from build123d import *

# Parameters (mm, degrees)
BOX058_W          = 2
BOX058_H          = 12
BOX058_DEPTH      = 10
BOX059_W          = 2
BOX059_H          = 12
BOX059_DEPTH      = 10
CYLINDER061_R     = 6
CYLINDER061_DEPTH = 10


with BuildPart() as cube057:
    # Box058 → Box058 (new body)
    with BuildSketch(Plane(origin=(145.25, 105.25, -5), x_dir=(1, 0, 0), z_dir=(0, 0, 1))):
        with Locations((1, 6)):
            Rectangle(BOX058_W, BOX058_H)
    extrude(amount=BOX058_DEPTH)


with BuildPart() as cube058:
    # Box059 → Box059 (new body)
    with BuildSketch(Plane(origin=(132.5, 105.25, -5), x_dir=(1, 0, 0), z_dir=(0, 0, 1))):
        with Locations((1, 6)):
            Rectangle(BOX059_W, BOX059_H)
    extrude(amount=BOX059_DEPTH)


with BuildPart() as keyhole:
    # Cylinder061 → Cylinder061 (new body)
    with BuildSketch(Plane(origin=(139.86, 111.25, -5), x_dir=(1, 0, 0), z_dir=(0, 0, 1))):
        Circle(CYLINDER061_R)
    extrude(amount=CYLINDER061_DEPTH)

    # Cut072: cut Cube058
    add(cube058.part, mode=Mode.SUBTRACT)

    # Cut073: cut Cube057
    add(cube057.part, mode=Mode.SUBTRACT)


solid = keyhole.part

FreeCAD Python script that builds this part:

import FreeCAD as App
import Part
import Sketcher


def add_polygon(sketch, points):
    """Adds a closed chain of lines whose ends are joined by coincident constraints."""
    first, n = sketch.GeometryCount, len(points)
    for a, b in zip(points, points[1:] + points[:1]):
        sketch.addGeometry(Part.LineSegment(App.Vector(*a, 0), App.Vector(*b, 0)), False)
    for i in range(n):
        sketch.addConstraint(Sketcher.Constraint("Coincident", first + i, 2, first + (i + 1) % n, 1))

doc = App.newDocument("Part")
params = doc.addObject("Spreadsheet::Sheet", "Params")
for row, (alias, value) in enumerate([
    ("sketch1_width", "2 mm"),
    ("sketch1_height", "12 mm"),
    ("pad1_length", "10 mm"),
    ("sketch2_width", "2 mm"),
    ("sketch2_height", "12 mm"),
    ("pad2_length", "10 mm"),
    ("sketch3_diameter", "12 mm"),
    ("pad3_length", "10 mm"),
], start=1):
    params.set(f"A{row}", alias)
    params.set(f"B{row}", "=" + value)
    params.setAlias(f"B{row}", alias)

body = doc.addObject("PartDesign::Body", "Body")

# Sketch on XY plane
sketch1 = doc.addObject("Sketcher::SketchObject", "Sketch")
body.addObject(sketch1)
sketch1.AttachmentSupport = (doc.XY_Plane, [""])
sketch1.MapMode = "FlatFace"
sketch1.AttachmentOffset = App.Placement(App.Vector(0, 0, -5), App.Rotation())
add_polygon(sketch1, [(145.2, 117.2), (145.2, 105.2), (147.2, 105.2), (147.2, 117.2)])  # lines 0-3
sketch1.addConstraint([
    Sketcher.Constraint("Vertical", 0),
    Sketcher.Constraint("Horizontal", 1),
    Sketcher.Constraint("Vertical", 2),
    Sketcher.Constraint("Horizontal", 3),
    Sketcher.Constraint("DistanceX", 1, 1, 1, 2, 2.0),
    Sketcher.Constraint("DistanceY", 0, 2, 0, 1, 12.0),
    Sketcher.Constraint("DistanceX", -1, 1, 0, 2, 145.25),
    Sketcher.Constraint("DistanceY", -1, 1, 0, 2, 105.25),
])
sketch1.setExpression("Constraints[8]", "Params.sketch1_width")
sketch1.setExpression("Constraints[9]", "Params.sketch1_height")
pad1 = doc.addObject("PartDesign::Pad", "Pad")
body.addObject(pad1)
pad1.Profile = sketch1
pad1.setExpression("Length", "Params.pad1_length")
body2 = doc.addObject("PartDesign::Body", "Body001")

# Sketch on XY plane
sketch2 = doc.addObject("Sketcher::SketchObject", "Sketch001")
body2.addObject(sketch2)
sketch2.AttachmentSupport = (doc.getObject("XY_Plane001"), [""])
sketch2.MapMode = "FlatFace"
sketch2.AttachmentOffset = App.Placement(App.Vector(0, 0, -5), App.Rotation())
add_polygon(sketch2, [(132.5, 117.2), (132.5, 105.2), (134.5, 105.2), (134.5, 117.2)])  # lines 0-3
sketch2.addConstraint([
    Sketcher.Constraint("Vertical", 0),
    Sketcher.Constraint("Horizontal", 1),
    Sketcher.Constraint("Vertical", 2),
    Sketcher.Constraint("Horizontal", 3),
    Sketcher.Constraint("DistanceX", 1, 1, 1, 2, 2.0),
    Sketcher.Constraint("DistanceY", 0, 2, 0, 1, 12.0),
    Sketcher.Constraint("DistanceX", -1, 1, 0, 2, 132.5),
    Sketcher.Constraint("DistanceY", -1, 1, 0, 2, 105.25),
])
sketch2.setExpression("Constraints[8]", "Params.sketch2_width")
sketch2.setExpression("Constraints[9]", "Params.sketch2_height")
pad2 = doc.addObject("PartDesign::Pad", "Pad001")
body2.addObject(pad2)
pad2.Profile = sketch2
pad2.setExpression("Length", "Params.pad2_length")
body3 = doc.addObject("PartDesign::Body", "Body002")

# Sketch on XY plane
sketch3 = doc.addObject("Sketcher::SketchObject", "Sketch002")
body3.addObject(sketch3)
sketch3.AttachmentSupport = (doc.getObject("XY_Plane002"), [""])
sketch3.MapMode = "FlatFace"
sketch3.AttachmentOffset = App.Placement(App.Vector(0, 0, -5), App.Rotation())
sketch3.addGeometry(Part.Circle(App.Vector(140, 111, 0), App.Vector(0, 0, 1), 6), False)
sketch3.addConstraint([
    Sketcher.Constraint("Diameter", 0, 12.0),
    Sketcher.Constraint("DistanceX", -1, 1, 0, 3, 139.86),
    Sketcher.Constraint("DistanceY", -1, 1, 0, 3, 111.25),
])
sketch3.setExpression("Constraints[0]", "Params.sketch3_diameter")
pad3 = doc.addObject("PartDesign::Pad", "Pad002")
body3.addObject(pad3)
pad3.Profile = sketch3
pad3.setExpression("Length", "Params.pad3_length")
doc.recompute()

boolean = doc.addObject("PartDesign::Boolean", "Boolean")
body3.addObject(boolean)
boolean.Type = "Cut"
boolean.addObjects([body2])
doc.recompute()

boolean2 = doc.addObject("PartDesign::Boolean", "Boolean001")
body3.addObject(boolean2)
boolean2.Type = "Cut"
boolean2.addObjects([body])

doc.recompute()
